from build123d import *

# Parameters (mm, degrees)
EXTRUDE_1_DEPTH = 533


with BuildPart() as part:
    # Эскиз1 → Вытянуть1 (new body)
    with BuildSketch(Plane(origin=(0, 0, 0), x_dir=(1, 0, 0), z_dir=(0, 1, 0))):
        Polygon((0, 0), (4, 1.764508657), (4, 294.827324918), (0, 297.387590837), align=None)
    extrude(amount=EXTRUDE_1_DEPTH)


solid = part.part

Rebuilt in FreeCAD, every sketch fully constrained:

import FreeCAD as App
import Part
import Sketcher
Q = App.Units.Quantity

doc = App.newDocument("Part")
body = doc.addObject("PartDesign::Body", "Body")

# Sketch on XZ plane
sketch1 = body.newObject("Sketcher::SketchObject", "Sketch")
sketch1.AttachmentSupport = (doc.getObject("XZ_Plane"), [""])
sketch1.MapMode = "FlatFace"
sketch1.addGeometry([
    Part.LineSegment(App.Vector(0, 0, 0), App.Vector(4, -1.8, 0)),
    Part.LineSegment(App.Vector(4, -1.8, 0), App.Vector(4, -294.8, 0)),
    Part.LineSegment(App.Vector(4, -294.8, 0), App.Vector(0, -297.4, 0)),
    Part.LineSegment(App.Vector(0, -297.4, 0), App.Vector(0, 0, 0)),
], False)
sketch1.addConstraint([
    Sketcher.Constraint("Coincident", 0, 2, 1, 1),
    Sketcher.Constraint("Coincident", 1, 2, 2, 1),
    Sketcher.Constraint("Coincident", 2, 2, 3, 1),
    Sketcher.Constraint("Coincident", 3, 2, 0, 1),
    Sketcher.Constraint("Vertical", 1),
    Sketcher.Constraint("Vertical", 3),
    Sketcher.Constraint("Coincident", 3, 2, -1, 1),
    Sketcher.Constraint("DistanceX", -1, 1, 0, 2, Q("4 mm")),
    Sketcher.Constraint("DistanceY", 3, 1, 3, 2, Q("297.387591 mm")),
    Sketcher.Constraint("DistanceY", 1, 2, 1, 1, Q("293.062816 mm")),
    Sketcher.Constraint("DistanceY", 0, 2, -1, 1, Q("1.764509 mm")),
])
pad1 = body.newObject("PartDesign::Pad", "Pad")
pad1.Profile = sketch1
pad1.Length = 533
pad1.Reversed = True

doc.recompute()
